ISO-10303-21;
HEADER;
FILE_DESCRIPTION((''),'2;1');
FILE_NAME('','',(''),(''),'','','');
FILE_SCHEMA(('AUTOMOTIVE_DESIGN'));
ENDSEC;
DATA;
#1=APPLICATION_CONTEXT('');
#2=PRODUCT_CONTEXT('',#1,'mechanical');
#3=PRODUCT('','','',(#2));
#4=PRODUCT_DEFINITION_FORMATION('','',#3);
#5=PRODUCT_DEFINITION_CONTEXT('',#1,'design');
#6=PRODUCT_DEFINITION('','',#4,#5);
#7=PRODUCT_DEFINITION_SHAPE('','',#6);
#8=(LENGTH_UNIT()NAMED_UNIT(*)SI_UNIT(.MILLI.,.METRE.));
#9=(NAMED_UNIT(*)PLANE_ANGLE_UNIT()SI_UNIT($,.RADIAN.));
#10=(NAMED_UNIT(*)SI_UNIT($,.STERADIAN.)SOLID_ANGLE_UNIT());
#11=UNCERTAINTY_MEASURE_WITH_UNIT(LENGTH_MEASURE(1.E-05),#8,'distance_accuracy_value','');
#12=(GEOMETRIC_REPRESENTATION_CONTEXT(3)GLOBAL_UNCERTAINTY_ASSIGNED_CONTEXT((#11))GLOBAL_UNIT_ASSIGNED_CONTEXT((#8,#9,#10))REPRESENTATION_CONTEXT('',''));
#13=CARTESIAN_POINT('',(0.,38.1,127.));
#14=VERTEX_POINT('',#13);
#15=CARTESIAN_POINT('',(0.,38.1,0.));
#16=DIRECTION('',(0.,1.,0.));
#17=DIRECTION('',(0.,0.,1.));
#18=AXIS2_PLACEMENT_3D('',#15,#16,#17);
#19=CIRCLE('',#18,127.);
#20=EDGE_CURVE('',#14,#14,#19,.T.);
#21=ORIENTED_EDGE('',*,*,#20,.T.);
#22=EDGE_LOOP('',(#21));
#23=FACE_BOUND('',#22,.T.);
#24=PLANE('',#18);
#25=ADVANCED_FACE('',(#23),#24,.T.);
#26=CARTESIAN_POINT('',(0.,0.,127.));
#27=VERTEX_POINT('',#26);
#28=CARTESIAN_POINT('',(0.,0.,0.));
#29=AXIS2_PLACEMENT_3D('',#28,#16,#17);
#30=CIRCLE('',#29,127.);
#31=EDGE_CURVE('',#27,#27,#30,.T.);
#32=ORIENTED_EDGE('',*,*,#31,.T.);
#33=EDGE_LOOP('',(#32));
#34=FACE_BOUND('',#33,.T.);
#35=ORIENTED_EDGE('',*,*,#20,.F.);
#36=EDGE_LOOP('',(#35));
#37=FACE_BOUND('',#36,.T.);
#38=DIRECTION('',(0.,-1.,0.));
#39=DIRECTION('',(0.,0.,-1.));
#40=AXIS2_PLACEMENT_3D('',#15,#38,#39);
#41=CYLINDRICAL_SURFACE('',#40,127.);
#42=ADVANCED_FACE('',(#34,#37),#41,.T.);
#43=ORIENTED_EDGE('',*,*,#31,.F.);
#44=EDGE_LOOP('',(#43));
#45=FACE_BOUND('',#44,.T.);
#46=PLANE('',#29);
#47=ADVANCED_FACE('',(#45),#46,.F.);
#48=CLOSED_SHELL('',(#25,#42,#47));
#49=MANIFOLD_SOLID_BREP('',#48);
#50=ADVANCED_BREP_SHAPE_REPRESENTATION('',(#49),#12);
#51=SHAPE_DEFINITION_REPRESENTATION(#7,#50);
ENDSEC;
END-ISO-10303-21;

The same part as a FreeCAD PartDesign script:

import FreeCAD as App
import Part
import Sketcher
from FreeCAD import Vector
Q = App.Units.Quantity

doc = App.newDocument("Part")
params = doc.addObject("Spreadsheet::Sheet", "Params")
for row, (alias, value) in enumerate([
    ("sketch1_diameter", "10 in"),
    ("pad1_length", "1.5 in"),
], start=1):
    params.set(f"A{row}", alias)
    params.set(f"B{row}", "=" + value)
    params.setAlias(f"B{row}", alias)

body = doc.addObject("PartDesign::Body", "Body")

# Sketch on XZ plane
sketch1 = body.newObject("Sketcher::SketchObject", "Sketch")
sketch1.AttachmentSupport = (doc.getObject("XZ_Plane"), [""])
sketch1.MapMode = "FlatFace"
sketch1.addGeometry(Part.Circle(Vector(0, 0, 0), Vector(0, 0, 1), 127), False)
sketch1.addConstraint([
    Sketcher.Constraint("Coincident", 0, 3, -1, 1),
    Sketcher.Constraint("Diameter", 0, Q("10 in")),
])
sketch1.setExpression("Constraints[1]", "Params.sketch1_diameter")
pad1 = body.newObject("PartDesign::Pad", "Pad")
pad1.Profile = sketch1
pad1.setExpression("Length", "Params.pad1_length")
pad1.Reversed = True

doc.recompute()
